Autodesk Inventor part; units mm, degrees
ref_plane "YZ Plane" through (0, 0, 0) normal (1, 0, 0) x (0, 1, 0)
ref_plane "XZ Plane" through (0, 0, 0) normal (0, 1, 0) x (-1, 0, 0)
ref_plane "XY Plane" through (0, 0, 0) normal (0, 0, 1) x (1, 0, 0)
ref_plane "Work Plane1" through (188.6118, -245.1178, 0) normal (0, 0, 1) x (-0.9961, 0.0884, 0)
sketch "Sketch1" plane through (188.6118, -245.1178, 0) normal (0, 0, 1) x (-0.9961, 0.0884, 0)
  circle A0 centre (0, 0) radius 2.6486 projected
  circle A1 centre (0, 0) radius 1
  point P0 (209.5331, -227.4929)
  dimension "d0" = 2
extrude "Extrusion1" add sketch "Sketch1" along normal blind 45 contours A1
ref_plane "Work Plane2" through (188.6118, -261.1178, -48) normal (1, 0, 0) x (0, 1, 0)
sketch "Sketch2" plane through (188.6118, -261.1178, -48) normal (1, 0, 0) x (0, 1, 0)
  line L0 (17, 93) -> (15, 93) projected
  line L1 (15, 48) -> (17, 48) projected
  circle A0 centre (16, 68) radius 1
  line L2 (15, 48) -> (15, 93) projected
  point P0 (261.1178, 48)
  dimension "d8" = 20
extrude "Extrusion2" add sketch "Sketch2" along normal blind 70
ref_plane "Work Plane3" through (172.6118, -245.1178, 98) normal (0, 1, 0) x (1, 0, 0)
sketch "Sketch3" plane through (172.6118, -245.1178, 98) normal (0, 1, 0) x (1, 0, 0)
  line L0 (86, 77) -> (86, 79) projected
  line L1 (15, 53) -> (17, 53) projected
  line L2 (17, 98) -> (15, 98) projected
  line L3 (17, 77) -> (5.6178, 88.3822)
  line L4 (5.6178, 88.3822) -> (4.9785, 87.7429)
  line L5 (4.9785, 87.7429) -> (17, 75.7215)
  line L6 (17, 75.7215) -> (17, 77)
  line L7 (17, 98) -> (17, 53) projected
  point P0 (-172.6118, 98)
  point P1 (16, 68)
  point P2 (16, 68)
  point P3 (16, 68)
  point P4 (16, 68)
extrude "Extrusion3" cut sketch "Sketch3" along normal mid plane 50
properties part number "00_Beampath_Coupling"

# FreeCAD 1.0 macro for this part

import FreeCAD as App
import Part
import Sketcher

V = App.Vector
Q = App.Units.Quantity


def add_polygon(sketch, points):
    """Adds a closed chain of lines whose ends are joined by coincident constraints."""
    first, n = sketch.GeometryCount, len(points)
    for a, b in zip(points, points[1:] + points[:1]):
        sketch.addGeometry(Part.LineSegment(App.Vector(*a, 0), App.Vector(*b, 0)), False)
    for i in range(n):
        sketch.addConstraint(Sketcher.Constraint("Coincident", first + i, 2, first + (i + 1) % n, 1))

doc = App.newDocument("Part")
body = doc.addObject("PartDesign::Body", "Body")
body.AllowCompound = True

# Sketch on XY plane
sketch1 = body.newObject("Sketcher::SketchObject", "Sketch")
sketch1.AttachmentSupport = (doc.getObject("XY_Plane"), [""])
sketch1.MapMode = "FlatFace"
sketch1.addGeometry(Part.Circle(V(188.6, -245.1, 0), V(0, 0, 1), 1), False)
sketch1.addConstraint([
    Sketcher.Constraint("Diameter", 0, 2.0),
    Sketcher.Constraint("DistanceX", -1, 1, 0, 3, 188.6118),
    Sketcher.Constraint("DistanceY", 0, 3, -1, 1, 245.1178),
])
pad1 = body.newObject("PartDesign::Pad", "Pad")
pad1.Profile = sketch1
pad1.Length = 45

# Sketch on YZ plane
sketch2 = body.newObject("Sketcher::SketchObject", "Sketch001")
sketch2.AttachmentSupport = (doc.getObject("YZ_Plane"), [""])
sketch2.MapMode = "FlatFace"
sketch2.AttachmentOffset = App.Placement(V(0, 0, 188.6118), App.Rotation())
sketch2.addGeometry(Part.Circle(V(-245.1, 20, 0), V(0, 0, 1), 1), False)
sketch2.addConstraint([
    Sketcher.Constraint("Diameter", 0, 2.0),
    Sketcher.Constraint("DistanceY", -1, 1, 0, 3, 20.0),
    Sketcher.Constraint("DistanceX", 0, 3, -1, 1, 245.1178),
])
pad2 = body.newObject("PartDesign::Pad", "Pad001")
pad2.Profile = sketch2
pad2.Length = 70

# Sketch on XZ plane
sketch3 = body.newObject("Sketcher::SketchObject", "Sketch002")
sketch3.AttachmentSupport = (doc.getObject("XZ_Plane"), [""])
sketch3.MapMode = "FlatFace"
sketch3.AttachmentOffset = App.Placement(V(0, 0, 245.1178), App.Rotation())
add_polygon(sketch3, [(189.6, 22.3), (189.6, 21), (178.2, 9.6), (177.6, 10.3)])  # lines 0-3
sketch3.addConstraint([
    Sketcher.Constraint("Vertical", 0),
    Sketcher.Constraint("Perpendicular", 1, 2),
    Sketcher.Constraint("Perpendicular", 2, 3),
    Sketcher.Constraint("Angle", 1, Q("-135 deg")),
    Sketcher.Constraint("DistanceY", -1, 1, 0, 2, 21.0),
    Sketcher.Constraint("Distance", 2, 0.904),
    Sketcher.Constraint("Distance", 3, 17.001),
    Sketcher.Constraint("DistanceX", -1, 1, 0, 2, 189.6118),
])
pocket1 = body.newObject("PartDesign::Pocket", "Pocket")
pocket1.Profile = sketch3
pocket1.Length = 50
pocket1.Midplane = True

doc.recompute()
